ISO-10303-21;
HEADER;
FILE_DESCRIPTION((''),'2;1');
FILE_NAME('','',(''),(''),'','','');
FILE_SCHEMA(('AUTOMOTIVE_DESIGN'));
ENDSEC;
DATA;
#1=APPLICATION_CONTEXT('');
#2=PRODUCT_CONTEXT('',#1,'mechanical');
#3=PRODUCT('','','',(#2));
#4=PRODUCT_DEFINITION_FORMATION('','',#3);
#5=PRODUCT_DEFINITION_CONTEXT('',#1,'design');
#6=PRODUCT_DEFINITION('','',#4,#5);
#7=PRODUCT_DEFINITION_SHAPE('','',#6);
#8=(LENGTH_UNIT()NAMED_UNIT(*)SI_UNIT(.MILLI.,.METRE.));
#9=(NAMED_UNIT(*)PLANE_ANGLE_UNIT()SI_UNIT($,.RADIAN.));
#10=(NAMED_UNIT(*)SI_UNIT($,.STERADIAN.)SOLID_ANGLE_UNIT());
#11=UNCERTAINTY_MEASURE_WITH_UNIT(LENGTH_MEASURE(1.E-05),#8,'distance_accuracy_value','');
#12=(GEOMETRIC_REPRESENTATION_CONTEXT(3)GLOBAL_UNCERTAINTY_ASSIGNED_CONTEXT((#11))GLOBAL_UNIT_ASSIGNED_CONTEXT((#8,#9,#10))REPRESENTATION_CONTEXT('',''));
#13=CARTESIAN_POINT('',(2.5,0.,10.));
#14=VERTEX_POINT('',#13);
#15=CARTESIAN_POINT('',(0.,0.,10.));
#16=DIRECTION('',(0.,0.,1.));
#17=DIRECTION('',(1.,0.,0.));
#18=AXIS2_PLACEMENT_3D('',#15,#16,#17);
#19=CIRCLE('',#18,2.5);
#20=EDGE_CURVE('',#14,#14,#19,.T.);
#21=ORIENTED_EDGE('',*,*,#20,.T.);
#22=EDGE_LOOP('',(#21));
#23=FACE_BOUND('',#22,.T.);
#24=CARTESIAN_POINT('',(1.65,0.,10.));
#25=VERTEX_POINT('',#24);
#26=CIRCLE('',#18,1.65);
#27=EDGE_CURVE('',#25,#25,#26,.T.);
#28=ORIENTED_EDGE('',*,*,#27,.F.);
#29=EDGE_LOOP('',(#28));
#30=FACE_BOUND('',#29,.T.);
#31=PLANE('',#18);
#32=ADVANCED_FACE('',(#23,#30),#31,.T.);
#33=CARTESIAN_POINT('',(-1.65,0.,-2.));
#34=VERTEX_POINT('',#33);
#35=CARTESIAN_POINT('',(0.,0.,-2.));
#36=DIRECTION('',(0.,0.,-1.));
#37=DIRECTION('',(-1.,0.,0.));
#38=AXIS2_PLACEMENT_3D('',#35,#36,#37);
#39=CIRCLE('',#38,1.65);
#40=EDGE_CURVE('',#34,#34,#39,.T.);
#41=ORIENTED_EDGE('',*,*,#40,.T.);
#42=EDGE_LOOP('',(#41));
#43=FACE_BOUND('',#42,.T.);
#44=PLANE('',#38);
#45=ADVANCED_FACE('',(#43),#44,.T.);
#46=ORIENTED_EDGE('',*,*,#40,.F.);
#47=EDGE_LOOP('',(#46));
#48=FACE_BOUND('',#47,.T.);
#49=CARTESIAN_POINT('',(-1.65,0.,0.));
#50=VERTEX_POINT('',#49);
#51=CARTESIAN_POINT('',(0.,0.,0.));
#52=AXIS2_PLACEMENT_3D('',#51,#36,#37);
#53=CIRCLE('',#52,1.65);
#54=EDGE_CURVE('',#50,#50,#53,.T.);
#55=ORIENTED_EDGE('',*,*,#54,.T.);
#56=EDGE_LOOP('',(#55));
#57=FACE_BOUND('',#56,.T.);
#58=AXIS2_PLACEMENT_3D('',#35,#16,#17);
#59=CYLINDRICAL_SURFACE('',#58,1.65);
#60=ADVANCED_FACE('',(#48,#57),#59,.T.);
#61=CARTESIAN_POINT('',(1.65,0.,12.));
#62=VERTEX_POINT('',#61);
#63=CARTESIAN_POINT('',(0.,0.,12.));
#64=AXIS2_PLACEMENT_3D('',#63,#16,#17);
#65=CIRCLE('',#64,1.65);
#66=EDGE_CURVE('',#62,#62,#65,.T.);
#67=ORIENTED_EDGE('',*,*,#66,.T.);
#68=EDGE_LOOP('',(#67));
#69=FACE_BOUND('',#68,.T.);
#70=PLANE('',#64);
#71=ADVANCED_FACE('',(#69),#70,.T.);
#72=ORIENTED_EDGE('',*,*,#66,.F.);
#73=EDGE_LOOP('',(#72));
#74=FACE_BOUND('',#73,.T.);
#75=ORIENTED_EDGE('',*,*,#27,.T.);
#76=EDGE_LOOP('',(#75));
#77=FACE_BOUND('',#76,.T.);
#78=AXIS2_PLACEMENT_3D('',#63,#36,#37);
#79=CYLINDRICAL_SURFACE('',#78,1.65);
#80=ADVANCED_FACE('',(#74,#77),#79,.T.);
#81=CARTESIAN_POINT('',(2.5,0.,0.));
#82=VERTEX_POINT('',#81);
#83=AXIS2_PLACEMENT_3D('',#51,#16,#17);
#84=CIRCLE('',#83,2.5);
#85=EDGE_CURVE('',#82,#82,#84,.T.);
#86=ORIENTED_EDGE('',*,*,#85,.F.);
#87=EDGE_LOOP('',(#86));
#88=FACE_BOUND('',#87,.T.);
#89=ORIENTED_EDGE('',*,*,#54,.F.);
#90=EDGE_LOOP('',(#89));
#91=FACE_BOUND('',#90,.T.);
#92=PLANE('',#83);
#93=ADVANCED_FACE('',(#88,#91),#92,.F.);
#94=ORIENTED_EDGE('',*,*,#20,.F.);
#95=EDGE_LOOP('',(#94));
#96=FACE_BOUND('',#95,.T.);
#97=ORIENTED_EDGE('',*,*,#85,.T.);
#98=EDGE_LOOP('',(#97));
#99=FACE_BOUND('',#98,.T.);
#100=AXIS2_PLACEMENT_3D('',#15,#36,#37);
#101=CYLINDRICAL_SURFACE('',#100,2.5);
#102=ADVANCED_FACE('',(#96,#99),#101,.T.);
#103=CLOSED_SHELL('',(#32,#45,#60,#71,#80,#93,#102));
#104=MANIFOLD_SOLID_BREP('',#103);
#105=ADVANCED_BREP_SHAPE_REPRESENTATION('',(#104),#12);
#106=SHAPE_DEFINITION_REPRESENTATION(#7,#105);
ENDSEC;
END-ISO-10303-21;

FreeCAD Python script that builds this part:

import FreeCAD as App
import Part
import Sketcher
Q = App.Units.Quantity

doc = App.newDocument("Part")
body = doc.addObject("PartDesign::Body", "Body")

# Sketch on XY plane
sketch1 = doc.addObject("Sketcher::SketchObject", "Sketch")
body.addObject(sketch1)
sketch1.AttachmentSupport = (doc.XY_Plane, [""])
sketch1.MapMode = "FlatFace"
sketch1.addGeometry(Part.Circle(App.Vector(0, 0, 0), App.Vector(0, 0, 1), 2.5), False)
sketch1.addConstraint([
    Sketcher.Constraint("Coincident", 0, 3, -1, 1),
    Sketcher.Constraint("Diameter", 0, Q("5 mm")),
])
pad1 = doc.addObject("PartDesign::Pad", "Pad")
body.addObject(pad1)
pad1.Profile = sketch1
pad1.Length = 10

# Sketch on XY plane
sketch2 = doc.addObject("Sketcher::SketchObject", "Sketch001")
body.addObject(sketch2)
sketch2.AttachmentSupport = (doc.XY_Plane, [""])
sketch2.MapMode = "FlatFace"
sketch2.AttachmentOffset = App.Placement(App.Vector(0, 0, 10), App.Rotation())
sketch2.addGeometry(Part.Circle(App.Vector(0, 0, 0), App.Vector(0, 0, 1), 1.6), False)
sketch2.addConstraint([
    Sketcher.Constraint("Coincident", 0, 3, -1, 1),
    Sketcher.Constraint("Diameter", 0, Q("3.3 mm")),
])
pad2 = doc.addObject("PartDesign::Pad", "Pad001")
body.addObject(pad2)
pad2.Profile = sketch2
pad2.Length = 2

# Sketch on XY plane
sketch3 = doc.addObject("Sketcher::SketchObject", "Sketch002")
body.addObject(sketch3)
sketch3.AttachmentSupport = (doc.XY_Plane, [""])
sketch3.MapMode = "FlatFace"
sketch3.addGeometry(Part.Circle(App.Vector(0, 0, 0), App.Vector(0, 0, 1), 1.6), False)
sketch3.addConstraint([
    Sketcher.Constraint("Coincident", 0, 3, -1, 1),
    Sketcher.Constraint("Diameter", 0, Q("3.3 mm")),
])
pad3 = doc.addObject("PartDesign::Pad", "Pad002")
body.addObject(pad3)
pad3.Profile = sketch3
pad3.Length = 2
pad3.Reversed = True

doc.recompute()
